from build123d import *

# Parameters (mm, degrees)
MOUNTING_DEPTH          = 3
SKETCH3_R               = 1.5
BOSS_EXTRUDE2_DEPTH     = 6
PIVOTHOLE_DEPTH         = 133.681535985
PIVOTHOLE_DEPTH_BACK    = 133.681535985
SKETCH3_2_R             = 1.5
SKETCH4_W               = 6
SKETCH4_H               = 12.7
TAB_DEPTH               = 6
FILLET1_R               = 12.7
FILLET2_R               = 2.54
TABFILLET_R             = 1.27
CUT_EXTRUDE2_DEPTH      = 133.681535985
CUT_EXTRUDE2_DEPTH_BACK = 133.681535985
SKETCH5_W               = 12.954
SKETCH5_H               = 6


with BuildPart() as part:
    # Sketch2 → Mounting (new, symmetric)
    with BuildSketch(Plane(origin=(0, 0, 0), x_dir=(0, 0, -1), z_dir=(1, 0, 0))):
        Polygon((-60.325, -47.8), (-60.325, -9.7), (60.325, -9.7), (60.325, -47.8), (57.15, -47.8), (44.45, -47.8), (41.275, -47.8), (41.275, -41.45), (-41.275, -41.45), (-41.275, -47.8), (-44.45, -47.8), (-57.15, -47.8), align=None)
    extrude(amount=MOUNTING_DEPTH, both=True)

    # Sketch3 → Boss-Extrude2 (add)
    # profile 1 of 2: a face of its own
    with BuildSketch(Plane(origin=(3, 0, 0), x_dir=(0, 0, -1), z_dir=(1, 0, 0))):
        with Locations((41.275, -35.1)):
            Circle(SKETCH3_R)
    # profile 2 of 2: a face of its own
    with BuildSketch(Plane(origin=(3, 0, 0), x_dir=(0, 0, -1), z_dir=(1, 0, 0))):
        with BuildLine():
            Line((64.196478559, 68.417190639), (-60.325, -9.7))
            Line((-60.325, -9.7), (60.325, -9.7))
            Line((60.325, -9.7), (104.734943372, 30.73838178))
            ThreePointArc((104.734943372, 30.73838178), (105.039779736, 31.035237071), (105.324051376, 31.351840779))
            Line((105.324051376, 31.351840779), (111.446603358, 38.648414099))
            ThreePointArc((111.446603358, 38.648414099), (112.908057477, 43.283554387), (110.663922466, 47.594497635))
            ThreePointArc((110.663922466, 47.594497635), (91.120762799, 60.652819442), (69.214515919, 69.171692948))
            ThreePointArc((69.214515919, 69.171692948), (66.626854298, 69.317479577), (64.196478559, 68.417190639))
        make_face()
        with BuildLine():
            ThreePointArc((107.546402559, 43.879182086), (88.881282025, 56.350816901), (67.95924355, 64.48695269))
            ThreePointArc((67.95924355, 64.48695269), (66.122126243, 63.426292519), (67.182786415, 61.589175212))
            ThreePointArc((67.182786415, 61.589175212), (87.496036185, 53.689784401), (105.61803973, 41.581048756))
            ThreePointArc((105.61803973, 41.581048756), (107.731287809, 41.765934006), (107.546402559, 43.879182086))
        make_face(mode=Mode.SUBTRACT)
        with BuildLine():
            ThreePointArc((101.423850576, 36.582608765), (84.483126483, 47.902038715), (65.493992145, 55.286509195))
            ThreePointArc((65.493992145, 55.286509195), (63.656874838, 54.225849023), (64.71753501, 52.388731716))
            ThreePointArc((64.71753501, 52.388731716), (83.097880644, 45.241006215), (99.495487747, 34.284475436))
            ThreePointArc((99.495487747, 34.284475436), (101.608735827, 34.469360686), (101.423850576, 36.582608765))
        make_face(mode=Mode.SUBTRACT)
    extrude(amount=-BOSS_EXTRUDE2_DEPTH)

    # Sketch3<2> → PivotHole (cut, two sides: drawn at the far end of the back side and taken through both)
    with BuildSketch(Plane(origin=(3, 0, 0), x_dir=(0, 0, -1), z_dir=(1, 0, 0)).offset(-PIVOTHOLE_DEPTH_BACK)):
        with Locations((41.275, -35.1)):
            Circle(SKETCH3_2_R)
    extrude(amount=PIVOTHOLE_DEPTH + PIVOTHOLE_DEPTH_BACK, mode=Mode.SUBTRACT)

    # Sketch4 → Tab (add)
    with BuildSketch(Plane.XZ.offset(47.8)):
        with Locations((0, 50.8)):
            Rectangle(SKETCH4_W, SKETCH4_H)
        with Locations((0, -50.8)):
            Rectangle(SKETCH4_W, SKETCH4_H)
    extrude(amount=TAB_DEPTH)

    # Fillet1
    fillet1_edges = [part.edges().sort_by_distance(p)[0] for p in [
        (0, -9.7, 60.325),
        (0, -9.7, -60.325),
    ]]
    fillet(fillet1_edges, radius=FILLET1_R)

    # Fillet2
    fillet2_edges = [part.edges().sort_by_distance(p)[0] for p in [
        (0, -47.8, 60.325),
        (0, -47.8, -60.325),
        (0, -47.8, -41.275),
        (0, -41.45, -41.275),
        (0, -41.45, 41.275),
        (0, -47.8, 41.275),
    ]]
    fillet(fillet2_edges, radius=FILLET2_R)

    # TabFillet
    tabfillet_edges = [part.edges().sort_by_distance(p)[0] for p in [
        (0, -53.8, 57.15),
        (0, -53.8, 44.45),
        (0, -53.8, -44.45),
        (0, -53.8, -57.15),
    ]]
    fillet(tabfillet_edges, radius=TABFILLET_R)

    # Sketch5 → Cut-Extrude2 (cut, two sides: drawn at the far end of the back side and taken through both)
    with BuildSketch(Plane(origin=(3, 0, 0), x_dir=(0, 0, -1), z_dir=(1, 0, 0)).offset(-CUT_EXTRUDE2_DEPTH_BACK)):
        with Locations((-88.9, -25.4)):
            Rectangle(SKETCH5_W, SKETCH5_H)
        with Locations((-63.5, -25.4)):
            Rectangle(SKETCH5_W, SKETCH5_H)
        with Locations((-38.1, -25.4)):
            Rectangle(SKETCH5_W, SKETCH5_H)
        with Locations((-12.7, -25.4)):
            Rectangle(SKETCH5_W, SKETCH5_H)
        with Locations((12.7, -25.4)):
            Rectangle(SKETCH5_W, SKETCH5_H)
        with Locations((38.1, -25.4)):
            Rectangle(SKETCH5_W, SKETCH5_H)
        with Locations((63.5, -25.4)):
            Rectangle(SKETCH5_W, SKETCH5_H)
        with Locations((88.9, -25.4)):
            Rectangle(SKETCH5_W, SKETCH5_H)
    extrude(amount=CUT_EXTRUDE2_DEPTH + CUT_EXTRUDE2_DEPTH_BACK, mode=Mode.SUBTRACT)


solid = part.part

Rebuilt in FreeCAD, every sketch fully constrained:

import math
import FreeCAD as App
import Part
import Sketcher
from FreeCAD import Vector
Q = App.Units.Quantity


def edges_at(feature, points):
    """Names of the edges that pass closest to the given points."""
    edges = feature.Shape.Edges
    near = lambda p: min(range(len(edges)), key=lambda i: edges[i].distToShape(Part.Vertex(*p))[0])
    return sorted({f"Edge{near(p) + 1}" for p in points})


def add_polygon(sketch, points):
    """Adds a closed chain of lines whose ends are joined by coincident constraints."""
    first, n = sketch.GeometryCount, len(points)
    for a, b in zip(points, points[1:] + points[:1]):
        sketch.addGeometry(Part.LineSegment(App.Vector(*a, 0), App.Vector(*b, 0)), False)
    for i in range(n):
        sketch.addConstraint(Sketcher.Constraint("Coincident", first + i, 2, first + (i + 1) % n, 1))

doc = App.newDocument("Part")
params = doc.addObject("Spreadsheet::Sheet", "Params")
for row, (alias, value) in enumerate([
    ("sketch1_width", "1.5 in"),
    ("sketch1_width2", "0.25 in"),
    ("sketch1_height", "0.75 in"),
    ("pad1_length", "6 mm"),
    ("sketch2_radius", "0.25 in"),
    ("sketch2_radius2", "4.25 in"),
    ("sketch2_height", "4.75 in"),
    ("pad2_length", "6 mm"),
    ("sketch4_height", "0.5 in"),
    ("pad3_length", "6 mm"),
    ("fillet_radius", "0.5 in"),
    ("fillet2_radius", "0.1 in"),
    ("fillet3_radius", "0.05 in"),
    ("sketch5_height", "0.51 in"),
], start=1):
    params.set(f"A{row}", alias)
    params.set(f"B{row}", "=" + value)
    params.setAlias(f"B{row}", alias)

body = doc.addObject("PartDesign::Body", "Body")

# Sketch on YZ plane
sketch1 = body.newObject("Sketcher::SketchObject", "Sketch")
sketch1.AttachmentSupport = (doc.getObject("YZ_Plane"), [""])
sketch1.MapMode = "FlatFace"
add_polygon(sketch1, [(-9.7, 60.325), (-47.8, 60.325), (-47.8, 41.275), (-41.45, 41.275), (-41.45, -41.275), (-47.8, -41.275), (-47.8, -60.325), (-9.7, -60.325)])  # lines 0-7
sketch1.addConstraint([
    Sketcher.Constraint("Horizontal", 0),
    Sketcher.Constraint("Vertical", 1),
    Sketcher.Constraint("Horizontal", 2),
    Sketcher.Constraint("Vertical", 3),
    Sketcher.Constraint("Horizontal", 4),
    Sketcher.Constraint("Vertical", 5),
    Sketcher.Constraint("Horizontal", 6),
    Sketcher.Constraint("Vertical", 7),
    Sketcher.Constraint("Symmetric", 1, 2, 4, 2, -1),
    Sketcher.Constraint("Equal", 1, 5),
    Sketcher.Constraint("DistanceX", 0, 2, 0, 1, Q("1.5 in")),
    Sketcher.Constraint("DistanceY", 3, 2, 0, 2, Q("4 in")),
    Sketcher.Constraint("DistanceX", 2, 1, 2, 2, Q("0.25 in")),
    Sketcher.Constraint("DistanceY", 1, 2, 1, 1, Q("0.75 in")),
    Sketcher.Constraint("DistanceX", 0, 2, -1, 1, 47.8),
])
sketch1.setExpression("Constraints[18]", "Params.sketch1_width")
sketch1.setExpression("Constraints[20]", "Params.sketch1_width2")
sketch1.setExpression("Constraints[21]", "Params.sketch1_height")
pad1 = body.newObject("PartDesign::Pad", "Pad")
pad1.Profile = sketch1
pad1.setExpression("Length", "Params.pad1_length")
pad1.Midplane = True

# Sketch on YZ plane
sketch2 = body.newObject("Sketcher::SketchObject", "Sketch001")
sketch2.AttachmentSupport = (doc.getObject("YZ_Plane"), [""])
sketch2.MapMode = "FlatFace"
sketch2.AttachmentOffset = App.Placement(Vector(0, 0, 3), App.Rotation())
sketch2.addGeometry([
    Part.Circle(Vector(-35.1, -41.275, 0), Vector(0, 0, 1), 1.5),  # 0
    Part.LineSegment(Vector(68.417191, -64.196479, 0), Vector(-9.7, 60.325, 0)),  # 1
    Part.LineSegment(Vector(-9.7, 60.325, 0), Vector(-9.7, -60.325, 0)),  # 2
    Part.LineSegment(Vector(-9.7, -60.325, 0), Vector(30.738382, -104.734943, 0)),  # 3
    Part.ArcOfCircle(Part.Circle(Vector(35.433542, -100.459669, 0), Vector(0, 0, 1), 6.35), math.radians(-137.679932), math.radians(-130)),  # 4
    Part.LineSegment(Vector(31.351841, -105.324051, 0), Vector(38.648414, -111.446603, 0)),  # 5
    Part.ArcOfCircle(Part.Circle(Vector(42.730115, -106.582221, 0), Vector(0, 0, 1), 6.35), math.radians(-130), math.radians(-40)),  # 6
    Part.ArcOfCircle(Part.Circle(Vector(-35.1, -41.275, 0), Vector(0, 0, 1), 107.95), math.radians(-40), math.radians(-15)),  # 7
    Part.ArcOfCircle(Part.Circle(Vector(63.038064, -67.571015, 0), Vector(0, 0, 1), 6.35), math.radians(-15), math.radians(32.101656)),  # 8
    Part.ArcOfCircle(Part.Circle(Vector(-35.1, -41.275, 0), Vector(0, 0, 1), 93.575), math.radians(-40), math.radians(-15)),  # 9
    Part.ArcOfCircle(Part.Circle(Vector(35.433542, -100.459669, 0), Vector(0, 0, 1), 1.5), math.radians(140), math.radians(320)),  # 10
    Part.ArcOfCircle(Part.Circle(Vector(-35.1, -41.275, 0), Vector(0, 0, 1), 90.575), math.radians(-40), math.radians(-15)),  # 11
    Part.ArcOfCircle(Part.Circle(Vector(53.83762, -65.105764, 0), Vector(0, 0, 1), 1.5), math.radians(-15), math.radians(165)),  # 12
    Part.ArcOfCircle(Part.Circle(Vector(-35.1, -41.275, 0), Vector(0, 0, 1), 103.1), math.radians(-40), math.radians(-15)),  # 13
    Part.ArcOfCircle(Part.Circle(Vector(42.730115, -106.582221, 0), Vector(0, 0, 1), 1.5), math.radians(140), math.radians(320)),  # 14
    Part.ArcOfCircle(Part.Circle(Vector(-35.1, -41.275, 0), Vector(0, 0, 1), 100.1), math.radians(-40), math.radians(-15)),  # 15
    Part.ArcOfCircle(Part.Circle(Vector(63.038064, -67.571015, 0), Vector(0, 0, 1), 1.5), math.radians(-15), math.radians(165)),  # 16
], False)
sketch2.addConstraint([
    Sketcher.Constraint("Coincident", 1, 2, 2, 1),
    Sketcher.Constraint("Coincident", 2, 2, 3, 1),
    Sketcher.Constraint("Tangent", 3, 2, 4, 1),
    Sketcher.Constraint("Tangent", 4, 2, 5, 1),
    Sketcher.Constraint("Tangent", 5, 2, 6, 1),
    Sketcher.Constraint("Tangent", 6, 2, 7, 1),
    Sketcher.Constraint("Tangent", 7, 2, 8, 1),
    Sketcher.Constraint("Tangent", 8, 2, 1, 1),
    Sketcher.Constraint("Tangent", 9, 1, 10, 2),
    Sketcher.Constraint("Tangent", 10, 1, 11, 1),
    Sketcher.Constraint("Tangent", 11, 2, 12, 2),
    Sketcher.Constraint("Tangent", 12, 1, 9, 2),
    Sketcher.Constraint("Tangent", 13, 1, 14, 2),
    Sketcher.Constraint("Tangent", 14, 1, 15, 1),
    Sketcher.Constraint("Tangent", 15, 2, 16, 2),
    Sketcher.Constraint("Tangent", 16, 1, 13, 2),
    Sketcher.Constraint("Vertical", 2),
    Sketcher.Constraint("Coincident", 7, 3, 0, 3),
    Sketcher.Constraint("Coincident", 9, 3, 0, 3),
    Sketcher.Constraint("Coincident", 10, 3, 4, 3),
    Sketcher.Constraint("Coincident", 11, 3, 0, 3),
    Sketcher.Constraint("Coincident", 13, 3, 0, 3),
    Sketcher.Constraint("Coincident", 14, 3, 6, 3),
    Sketcher.Constraint("Coincident", 15, 3, 0, 3),
    Sketcher.Constraint("Coincident", 16, 3, 8, 3),
    Sketcher.Constraint("Equal", 4, 6),
    Sketcher.Constraint("Equal", 0, 10),
    Sketcher.Constraint("Equal", 12, 14),
    Sketcher.Constraint("Radius", 4, Q("0.25 in")),
    Sketcher.Constraint("Radius", 7, Q("4.25 in")),
    Sketcher.Constraint("Angle", 5, Q("-40 deg")),
    Sketcher.Constraint("DistanceX", 15, 3, 1, 2, Q("1 in")),
    Sketcher.Constraint("DistanceY", 15, 3, 1, 2, Q("4 in")),
    Sketcher.Constraint("DistanceY", 2, 2, 2, 1, Q("4.75 in")),
    Sketcher.Constraint("Diameter", 0, 3.0),
    Sketcher.Constraint("Radius", 9, 93.575),
    Sketcher.Constraint("DistanceY", 0, 3, -1, 1, Q("1.625 in")),
    Sketcher.Constraint("DistanceX", 0, 3, -1, 1, 35.1),
    Sketcher.Constraint("DistanceY", 6, 2, 14, 3, 4.081701),
    Sketcher.Constraint("Distance", 1, 146.996238),
    Sketcher.Constraint("DistanceX", -1, 1, 12, 3, 53.83762),
])
sketch2.setExpression("Constraints[28]", "Params.sketch2_radius")
sketch2.setExpression("Constraints[29]", "Params.sketch2_radius2")
sketch2.setExpression("Constraints[33]", "Params.sketch2_height")
pad2 = body.newObject("PartDesign::Pad", "Pad001")
pad2.Profile = sketch2
pad2.setExpression("Length", "Params.pad2_length")
pad2.Reversed = True

# Sketch on YZ plane
sketch3 = body.newObject("Sketcher::SketchObject", "Sketch002")
sketch3.AttachmentSupport = (doc.getObject("YZ_Plane"), [""])
sketch3.MapMode = "FlatFace"
sketch3.AttachmentOffset = App.Placement(Vector(0, 0, 3), App.Rotation())
sketch3.addGeometry(Part.Circle(Vector(-35.1, -41.275, 0), Vector(0, 0, 1), 1.5), False)
sketch3.addConstraint([
    Sketcher.Constraint("Diameter", 0, 3.0),
    Sketcher.Constraint("DistanceY", 0, 3, -1, 1, Q("1.625 in")),
    Sketcher.Constraint("DistanceX", 0, 3, -1, 1, 35.1),
])
pocket1 = body.newObject("PartDesign::Pocket", "Pocket")
pocket1.Profile = sketch3
pocket1.Type = "ThroughAll"
pocket1.Midplane = True

# Sketch on XZ plane
sketch4 = body.newObject("Sketcher::SketchObject", "Sketch003")
sketch4.AttachmentSupport = (doc.getObject("XZ_Plane"), [""])
sketch4.MapMode = "FlatFace"
sketch4.AttachmentOffset = App.Placement(Vector(0, 0, 47.8), App.Rotation())
add_polygon(sketch4, [(-3, 57.15), (-3, 44.45), (3, 44.45), (3, 57.15)])  # lines 0-3
add_polygon(sketch4, [(-3, -44.45), (-3, -57.15), (3, -57.15), (3, -44.45)])  # lines 4-7
sketch4.addConstraint([
    Sketcher.Constraint("Vertical", 0),
    Sketcher.Constraint("Horizontal", 1),
    Sketcher.Constraint("Vertical", 2),
    Sketcher.Constraint("Horizontal", 3),
    Sketcher.Constraint("Vertical", 4),
    Sketcher.Constraint("Horizontal", 5),
    Sketcher.Constraint("Vertical", 6),
    Sketcher.Constraint("Horizontal", 7),
    Sketcher.Constraint("Symmetric", 2, 2, 4, 2, -1, 1),
    Sketcher.Constraint("Symmetric", 0, 2, 6, 2, -1, 1),
    Sketcher.Constraint("Vertical", 3, 2, 4, 2),
    Sketcher.Constraint("DistanceY", 0, 2, 0, 1, Q("0.5 in")),
    Sketcher.Constraint("DistanceY", 4, 2, 0, 2, Q("4 in")),
    Sketcher.Constraint("DistanceX", 1, 1, 1, 2, 6.0),
])
sketch4.setExpression("Constraints[19]", "Params.sketch4_height")
pad3 = body.newObject("PartDesign::Pad", "Pad002")
pad3.Profile = sketch4
pad3.setExpression("Length", "Params.pad3_length")
doc.recompute()

fillet = body.newObject("PartDesign::Fillet", "Fillet")
fillet.Base = (pad3, edges_at(pad3, [(0, -9.7, 60.325), (0, -9.7, -60.325)]))
fillet.setExpression("Radius", "Params.fillet_radius")
doc.recompute()

fillet2 = body.newObject("PartDesign::Fillet", "Fillet001")
fillet2.Base = (fillet, edges_at(fillet, [
    (0, -47.8, 60.325),
    (0, -47.8, -60.325),
    (0, -47.8, -41.275),
    (0, -41.45, -41.275),
    (0, -41.45, 41.275),
    (0, -47.8, 41.275),
]))
fillet2.setExpression("Radius", "Params.fillet2_radius")
doc.recompute()

fillet3 = body.newObject("PartDesign::Fillet", "Fillet002")
fillet3.Base = (fillet2, edges_at(fillet2, [
    (0, -53.8, 57.15),
    (0, -53.8, 44.45),
    (0, -53.8, -44.45),
    (0, -53.8, -57.15),
]))
fillet3.setExpression("Radius", "Params.fillet3_radius")

# Sketch on YZ plane
sketch5 = body.newObject("Sketcher::SketchObject", "Sketch004")
sketch5.AttachmentSupport = (doc.getObject("YZ_Plane"), [""])
sketch5.MapMode = "FlatFace"
sketch5.AttachmentOffset = App.Placement(Vector(0, 0, 3), App.Rotation())
add_polygon(sketch5, [(-22.4, 95.377), (-28.4, 95.377), (-28.4, 82.423), (-22.4, 82.423)])  # lines 0-3
add_polygon(sketch5, [(-22.4, 69.977), (-28.4, 69.977), (-28.4, 57.023), (-22.4, 57.023)])  # lines 4-7
add_polygon(sketch5, [(-22.4, 44.577), (-28.4, 44.577), (-28.4, 31.623), (-22.4, 31.623)])  # lines 8-11
add_polygon(sketch5, [(-22.4, 19.177), (-28.4, 19.177), (-28.4, 6.223), (-22.4, 6.223)])  # lines 12-15
add_polygon(sketch5, [(-22.4, -6.223), (-28.4, -6.223), (-28.4, -19.177), (-22.4, -19.177)])  # lines 16-19
add_polygon(sketch5, [(-22.4, -31.623), (-28.4, -31.623), (-28.4, -44.577), (-22.4, -44.577)])  # lines 20-23
add_polygon(sketch5, [(-22.4, -57.023), (-28.4, -57.023), (-28.4, -69.977), (-22.4, -69.977)])  # lines 24-27
add_polygon(sketch5, [(-22.4, -82.423), (-28.4, -82.423), (-28.4, -95.377), (-22.4, -95.377)])  # lines 28-31
sketch5.addConstraint([
    Sketcher.Constraint("Horizontal", 0),
    Sketcher.Constraint("Vertical", 1),
    Sketcher.Constraint("Horizontal", 2),
    Sketcher.Constraint("Vertical", 3),
    Sketcher.Constraint("Horizontal", 4),
    Sketcher.Constraint("Vertical", 5),
    Sketcher.Constraint("Horizontal", 6),
    Sketcher.Constraint("Vertical", 7),
    Sketcher.Constraint("Horizontal", 8),
    Sketcher.Constraint("Vertical", 9),
    Sketcher.Constraint("Horizontal", 10),
    Sketcher.Constraint("Vertical", 11),
    Sketcher.Constraint("Horizontal", 12),
    Sketcher.Constraint("Vertical", 13),
    Sketcher.Constraint("Horizontal", 14),
    Sketcher.Constraint("Vertical", 15),
    Sketcher.Constraint("Horizontal", 16),
    Sketcher.Constraint("Vertical", 17),
    Sketcher.Constraint("Horizontal", 18),
    Sketcher.Constraint("Vertical", 19),
    Sketcher.Constraint("Horizontal", 20),
    Sketcher.Constraint("Vertical", 21),
    Sketcher.Constraint("Horizontal", 22),
    Sketcher.Constraint("Vertical", 23),
    Sketcher.Constraint("Horizontal", 24),
    Sketcher.Constraint("Vertical", 25),
    Sketcher.Constraint("Horizontal", 26),
    Sketcher.Constraint("Vertical", 27),
    Sketcher.Constraint("Horizontal", 28),
    Sketcher.Constraint("Vertical", 29),
    Sketcher.Constraint("Horizontal", 30),
    Sketcher.Constraint("Vertical", 31),
    Sketcher.Constraint("Symmetric", 13, 2, 16, 2, -1),
    Sketcher.Constraint("Symmetric", 15, 2, 18, 2, -1),
    Sketcher.Constraint("Symmetric", 9, 2, 20, 2, -1),
    Sketcher.Constraint("Symmetric", 11, 2, 22, 2, -1),
    Sketcher.Constraint("Symmetric", 5, 2, 24, 2, -1),
    Sketcher.Constraint("Symmetric", 7, 2, 26, 2, -1),
    Sketcher.Constraint("Symmetric", 1, 2, 28, 2, -1),
    Sketcher.Constraint("Symmetric", 3, 2, 30, 2, -1),
    Sketcher.Constraint("Vertical", 1, 2, 4, 2),
    Sketcher.Constraint("Vertical", 3, 2, 6, 2),
    Sketcher.Constraint("Vertical", 5, 2, 8, 2),
    Sketcher.Constraint("Vertical", 7, 2, 10, 2),
    Sketcher.Constraint("Vertical", 9, 2, 12, 2),
    Sketcher.Constraint("Vertical", 11, 2, 14, 2),
    Sketcher.Constraint("Equal", 3, 5),
    Sketcher.Constraint("Equal", 7, 9),
    Sketcher.Constraint("Equal", 11, 13),
    Sketcher.Constraint("DistanceY", 4, 2, 0, 2, Q("1 in")),
    Sketcher.Constraint("DistanceY", 8, 2, 4, 2, Q("1 in")),
    Sketcher.Constraint("DistanceY", 12, 2, 8, 2, Q("1 in")),
    Sketcher.Constraint("DistanceY", 16, 2, 12, 2, Q("1 in")),
    Sketcher.Constraint("DistanceY", 1, 2, 1, 1, Q("0.51 in")),
    Sketcher.Constraint("DistanceX", 0, 2, 0, 1, 6.0),
    Sketcher.Constraint("DistanceX", 0, 2, -1, 1, 28.4),
])
sketch5.setExpression("Constraints[85]", "Params.sketch5_height")
pocket2 = body.newObject("PartDesign::Pocket", "Pocket001")
pocket2.Profile = sketch5
pocket2.Type = "ThroughAll"
pocket2.Midplane = True

doc.recompute()
